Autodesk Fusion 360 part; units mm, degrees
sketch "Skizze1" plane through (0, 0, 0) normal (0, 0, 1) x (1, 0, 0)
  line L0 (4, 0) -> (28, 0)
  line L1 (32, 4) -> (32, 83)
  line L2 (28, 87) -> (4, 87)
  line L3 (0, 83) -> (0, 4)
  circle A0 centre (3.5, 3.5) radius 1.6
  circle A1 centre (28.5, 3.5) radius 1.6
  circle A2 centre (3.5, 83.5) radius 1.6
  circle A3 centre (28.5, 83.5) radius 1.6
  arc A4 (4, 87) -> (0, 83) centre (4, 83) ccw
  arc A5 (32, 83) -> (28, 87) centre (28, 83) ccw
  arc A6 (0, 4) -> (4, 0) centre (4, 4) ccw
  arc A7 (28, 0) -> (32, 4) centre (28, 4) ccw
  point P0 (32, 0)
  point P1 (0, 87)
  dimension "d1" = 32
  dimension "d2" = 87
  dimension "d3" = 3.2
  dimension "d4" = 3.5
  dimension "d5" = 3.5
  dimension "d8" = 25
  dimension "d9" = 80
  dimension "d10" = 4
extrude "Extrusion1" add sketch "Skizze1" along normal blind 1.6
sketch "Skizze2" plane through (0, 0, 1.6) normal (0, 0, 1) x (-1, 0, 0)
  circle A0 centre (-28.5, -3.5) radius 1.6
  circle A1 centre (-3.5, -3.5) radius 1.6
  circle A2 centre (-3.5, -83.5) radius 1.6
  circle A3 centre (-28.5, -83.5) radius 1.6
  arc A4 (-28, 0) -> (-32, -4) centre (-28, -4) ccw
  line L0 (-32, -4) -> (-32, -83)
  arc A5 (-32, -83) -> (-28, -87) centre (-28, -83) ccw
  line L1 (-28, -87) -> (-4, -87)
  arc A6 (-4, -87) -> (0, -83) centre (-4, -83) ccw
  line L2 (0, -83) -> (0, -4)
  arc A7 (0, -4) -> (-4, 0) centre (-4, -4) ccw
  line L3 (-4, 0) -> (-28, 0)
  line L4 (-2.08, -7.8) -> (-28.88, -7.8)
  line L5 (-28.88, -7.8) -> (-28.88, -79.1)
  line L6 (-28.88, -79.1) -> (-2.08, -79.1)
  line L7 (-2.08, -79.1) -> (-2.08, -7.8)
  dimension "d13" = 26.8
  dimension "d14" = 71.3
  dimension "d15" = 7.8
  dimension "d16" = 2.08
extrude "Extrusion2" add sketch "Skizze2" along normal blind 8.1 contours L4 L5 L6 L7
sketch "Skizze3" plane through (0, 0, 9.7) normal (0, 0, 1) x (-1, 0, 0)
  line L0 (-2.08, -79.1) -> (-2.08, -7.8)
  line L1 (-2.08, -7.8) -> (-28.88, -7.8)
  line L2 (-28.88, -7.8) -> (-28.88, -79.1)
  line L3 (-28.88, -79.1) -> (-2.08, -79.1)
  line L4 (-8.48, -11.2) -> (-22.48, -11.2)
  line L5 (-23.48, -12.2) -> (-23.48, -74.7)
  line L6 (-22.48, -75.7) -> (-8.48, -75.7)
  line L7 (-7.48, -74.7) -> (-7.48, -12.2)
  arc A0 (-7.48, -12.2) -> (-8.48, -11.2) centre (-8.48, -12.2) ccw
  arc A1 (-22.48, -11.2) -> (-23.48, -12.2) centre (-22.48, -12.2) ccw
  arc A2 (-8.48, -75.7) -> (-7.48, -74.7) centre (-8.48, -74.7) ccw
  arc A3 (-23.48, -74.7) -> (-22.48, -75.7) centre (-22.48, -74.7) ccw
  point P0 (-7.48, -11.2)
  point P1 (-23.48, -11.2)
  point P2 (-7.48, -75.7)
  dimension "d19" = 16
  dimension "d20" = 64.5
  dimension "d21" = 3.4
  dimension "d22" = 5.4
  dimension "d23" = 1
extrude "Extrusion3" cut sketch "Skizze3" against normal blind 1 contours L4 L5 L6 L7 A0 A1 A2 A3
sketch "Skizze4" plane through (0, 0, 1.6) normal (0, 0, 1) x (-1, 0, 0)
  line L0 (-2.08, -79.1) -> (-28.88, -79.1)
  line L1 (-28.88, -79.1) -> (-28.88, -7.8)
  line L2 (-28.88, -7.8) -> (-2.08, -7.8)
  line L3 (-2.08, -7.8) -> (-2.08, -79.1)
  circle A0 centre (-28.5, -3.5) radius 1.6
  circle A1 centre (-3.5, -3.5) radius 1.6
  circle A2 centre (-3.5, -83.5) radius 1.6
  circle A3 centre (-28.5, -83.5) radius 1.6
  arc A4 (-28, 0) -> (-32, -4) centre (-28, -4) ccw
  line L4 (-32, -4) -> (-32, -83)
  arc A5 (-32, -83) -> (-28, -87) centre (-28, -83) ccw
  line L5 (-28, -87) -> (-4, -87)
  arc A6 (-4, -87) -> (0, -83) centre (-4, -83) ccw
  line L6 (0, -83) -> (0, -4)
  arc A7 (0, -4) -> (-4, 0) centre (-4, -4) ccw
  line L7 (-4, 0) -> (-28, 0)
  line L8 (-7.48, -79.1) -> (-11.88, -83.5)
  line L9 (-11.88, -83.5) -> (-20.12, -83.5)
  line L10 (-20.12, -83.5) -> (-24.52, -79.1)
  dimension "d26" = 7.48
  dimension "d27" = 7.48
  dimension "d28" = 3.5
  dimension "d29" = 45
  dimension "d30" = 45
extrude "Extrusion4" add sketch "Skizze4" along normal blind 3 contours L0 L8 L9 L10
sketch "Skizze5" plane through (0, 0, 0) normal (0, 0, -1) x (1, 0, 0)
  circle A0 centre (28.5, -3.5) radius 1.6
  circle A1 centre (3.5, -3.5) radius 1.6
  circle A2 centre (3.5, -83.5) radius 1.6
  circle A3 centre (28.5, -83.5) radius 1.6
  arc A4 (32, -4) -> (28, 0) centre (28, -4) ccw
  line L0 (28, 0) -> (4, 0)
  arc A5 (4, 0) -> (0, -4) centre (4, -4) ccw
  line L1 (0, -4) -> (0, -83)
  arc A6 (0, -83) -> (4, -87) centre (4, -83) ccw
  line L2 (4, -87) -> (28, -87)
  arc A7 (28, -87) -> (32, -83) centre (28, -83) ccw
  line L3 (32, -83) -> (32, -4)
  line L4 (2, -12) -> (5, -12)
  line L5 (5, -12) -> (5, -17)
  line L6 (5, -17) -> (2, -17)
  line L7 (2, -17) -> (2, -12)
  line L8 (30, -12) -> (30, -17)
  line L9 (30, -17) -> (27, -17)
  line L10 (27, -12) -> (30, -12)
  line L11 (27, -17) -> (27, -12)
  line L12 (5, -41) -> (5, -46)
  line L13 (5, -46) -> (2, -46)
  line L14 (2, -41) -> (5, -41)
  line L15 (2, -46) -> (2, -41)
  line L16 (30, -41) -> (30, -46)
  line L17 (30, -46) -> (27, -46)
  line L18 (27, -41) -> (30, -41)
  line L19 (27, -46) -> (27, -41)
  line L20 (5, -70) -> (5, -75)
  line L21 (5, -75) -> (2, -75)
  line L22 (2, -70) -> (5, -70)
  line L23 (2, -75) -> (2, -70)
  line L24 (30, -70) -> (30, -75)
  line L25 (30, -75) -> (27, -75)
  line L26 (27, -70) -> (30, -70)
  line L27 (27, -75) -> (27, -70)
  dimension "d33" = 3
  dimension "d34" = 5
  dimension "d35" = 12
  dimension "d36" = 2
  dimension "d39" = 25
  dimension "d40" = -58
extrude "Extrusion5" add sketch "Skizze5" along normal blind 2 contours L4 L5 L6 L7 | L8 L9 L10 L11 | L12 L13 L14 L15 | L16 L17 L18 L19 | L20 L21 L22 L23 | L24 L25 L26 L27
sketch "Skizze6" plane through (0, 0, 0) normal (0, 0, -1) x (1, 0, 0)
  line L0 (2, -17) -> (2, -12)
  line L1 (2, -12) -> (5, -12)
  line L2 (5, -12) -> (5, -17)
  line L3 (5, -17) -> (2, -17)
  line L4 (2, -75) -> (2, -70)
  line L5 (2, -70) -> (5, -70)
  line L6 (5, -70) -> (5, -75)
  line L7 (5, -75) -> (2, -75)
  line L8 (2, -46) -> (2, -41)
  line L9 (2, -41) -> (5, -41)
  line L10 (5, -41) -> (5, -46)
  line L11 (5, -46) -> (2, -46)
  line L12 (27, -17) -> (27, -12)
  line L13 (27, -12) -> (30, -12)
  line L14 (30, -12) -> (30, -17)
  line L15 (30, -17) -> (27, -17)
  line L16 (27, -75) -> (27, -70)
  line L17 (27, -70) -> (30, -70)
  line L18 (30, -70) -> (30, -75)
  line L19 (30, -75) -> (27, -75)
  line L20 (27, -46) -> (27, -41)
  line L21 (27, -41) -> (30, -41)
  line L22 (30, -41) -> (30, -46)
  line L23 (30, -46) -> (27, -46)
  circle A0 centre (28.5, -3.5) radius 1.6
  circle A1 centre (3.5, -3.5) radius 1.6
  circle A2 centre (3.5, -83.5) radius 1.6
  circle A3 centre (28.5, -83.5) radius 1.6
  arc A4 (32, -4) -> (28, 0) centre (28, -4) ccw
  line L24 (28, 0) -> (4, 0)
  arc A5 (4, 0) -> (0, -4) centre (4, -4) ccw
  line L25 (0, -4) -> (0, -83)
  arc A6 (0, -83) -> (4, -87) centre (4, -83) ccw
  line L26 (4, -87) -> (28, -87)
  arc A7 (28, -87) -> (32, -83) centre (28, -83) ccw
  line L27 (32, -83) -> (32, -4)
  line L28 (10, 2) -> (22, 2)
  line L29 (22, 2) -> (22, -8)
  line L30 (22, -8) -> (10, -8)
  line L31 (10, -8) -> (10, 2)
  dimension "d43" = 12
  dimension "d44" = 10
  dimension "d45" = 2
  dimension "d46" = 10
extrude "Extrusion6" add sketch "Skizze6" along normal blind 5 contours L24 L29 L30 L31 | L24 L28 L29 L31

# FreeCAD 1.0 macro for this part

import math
import FreeCAD as App
import Part
import Sketcher
Q = App.Units.Quantity


def add_polygon(sketch, points):
    """Adds a closed chain of lines whose ends are joined by coincident constraints."""
    first, n = sketch.GeometryCount, len(points)
    for a, b in zip(points, points[1:] + points[:1]):
        sketch.addGeometry(Part.LineSegment(App.Vector(*a, 0), App.Vector(*b, 0)), False)
    for i in range(n):
        sketch.addConstraint(Sketcher.Constraint("Coincident", first + i, 2, first + (i + 1) % n, 1))

doc = App.newDocument("Part")
body = doc.addObject("PartDesign::Body", "Body")

sketch1 = doc.addObject("Sketcher::SketchObject", "Sketch")
body.addObject(sketch1)
sketch1.AttachmentSupport = (doc.XY_Plane, [""])
sketch1.MapMode = "FlatFace"
sketch1.addGeometry([
    Part.ArcOfCircle(Part.Circle(App.Vector(4, 4, 0), App.Vector(0, 0, 1), 4), math.radians(180), math.radians(270)),
    Part.LineSegment(App.Vector(4, 0, 0), App.Vector(28, 0, 0)),
    Part.ArcOfCircle(Part.Circle(App.Vector(28, 4, 0), App.Vector(0, 0, 1), 4), math.radians(-90), math.radians(0)),
    Part.LineSegment(App.Vector(32, 4, 0), App.Vector(32, 83, 0)),
    Part.ArcOfCircle(Part.Circle(App.Vector(28, 83, 0), App.Vector(0, 0, 1), 4), math.radians(0), math.radians(90)),
    Part.LineSegment(App.Vector(28, 87, 0), App.Vector(4, 87, 0)),
    Part.ArcOfCircle(Part.Circle(App.Vector(4, 83, 0), App.Vector(0, 0, 1), 4), math.radians(90), math.radians(180)),
    Part.LineSegment(App.Vector(0, 83, 0), App.Vector(0, 4, 0)),
    Part.Circle(App.Vector(3.5, 3.5, 0), App.Vector(0, 0, 1), 1.6),
    Part.Circle(App.Vector(28.5, 3.5, 0), App.Vector(0, 0, 1), 1.6),
    Part.Circle(App.Vector(3.5, 83.5, 0), App.Vector(0, 0, 1), 1.6),
    Part.Circle(App.Vector(28.5, 83.5, 0), App.Vector(0, 0, 1), 1.6),
], False)
sketch1.addConstraint([
    Sketcher.Constraint("Tangent", 0, 2, 1, 1),
    Sketcher.Constraint("Tangent", 1, 2, 2, 1),
    Sketcher.Constraint("Tangent", 2, 2, 3, 1),
    Sketcher.Constraint("Tangent", 3, 2, 4, 1),
    Sketcher.Constraint("Tangent", 4, 2, 5, 1),
    Sketcher.Constraint("Tangent", 5, 2, 6, 1),
    Sketcher.Constraint("Tangent", 6, 2, 7, 1),
    Sketcher.Constraint("Tangent", 7, 2, 0, 1),
    Sketcher.Constraint("Horizontal", 1),
    Sketcher.Constraint("Vertical", 3),
    Sketcher.Constraint("Horizontal", 5),
    Sketcher.Constraint("Vertical", 7),
    Sketcher.Constraint("Equal", 0, 2),
    Sketcher.Constraint("Equal", 2, 4),
    Sketcher.Constraint("Equal", 4, 6),
    Sketcher.Constraint("Equal", 8, 9),
    Sketcher.Constraint("Equal", 9, 10),
    Sketcher.Constraint("Equal", 10, 11),
    Sketcher.Constraint("PointOnObject", 0, 2, -1),
    Sketcher.Constraint("PointOnObject", 6, 2, -2),
    Sketcher.Constraint("Horizontal", 8, 3, 9, 3),
    Sketcher.Constraint("Horizontal", 10, 3, 11, 3),
    Sketcher.Constraint("Vertical", 8, 3, 10, 3),
    Sketcher.Constraint("Vertical", 9, 3, 11, 3),
    Sketcher.Constraint("Radius", 0, Q("4 mm")),
    Sketcher.Constraint("Diameter", 8, Q("3.2 mm")),
    Sketcher.Constraint("DistanceX", -1, 1, 2, 2, Q("32 mm")),
    Sketcher.Constraint("DistanceY", -1, 1, 4, 2, Q("87 mm")),
    Sketcher.Constraint("DistanceX", 8, 3, 9, 3, Q("25 mm")),
    Sketcher.Constraint("DistanceY", 8, 3, 10, 3, Q("80 mm")),
    Sketcher.Constraint("DistanceX", -1, 1, 8, 3, Q("3.5 mm")),
    Sketcher.Constraint("DistanceY", -1, 1, 8, 3, Q("3.5 mm")),
])
pad1 = doc.addObject("PartDesign::Pad", "Pad")
body.addObject(pad1)
pad1.Profile = sketch1
pad1.Length = 1.6

sketch2 = doc.addObject("Sketcher::SketchObject", "Sketch001")
body.addObject(sketch2)
sketch2.AttachmentSupport = (doc.XY_Plane, [""])
sketch2.MapMode = "FlatFace"
sketch2.AttachmentOffset = App.Placement(App.Vector(0, 0, 1.6), App.Rotation())
add_polygon(sketch2, [(2.08, 79.1), (2.08, 7.8), (28.88, 7.8), (28.88, 79.1)])
sketch2.addConstraint([
    Sketcher.Constraint("Vertical", 0),
    Sketcher.Constraint("Horizontal", 1),
    Sketcher.Constraint("Vertical", 2),
    Sketcher.Constraint("Horizontal", 3),
    Sketcher.Constraint("DistanceX", 1, 1, 1, 2, Q("26.8 mm")),
    Sketcher.Constraint("DistanceY", 0, 2, 0, 1, Q("71.3 mm")),
    Sketcher.Constraint("DistanceY", -1, 1, 0, 2, Q("7.8 mm")),
    Sketcher.Constraint("DistanceX", -1, 1, 0, 2, Q("2.08 mm")),
])
pad2 = doc.addObject("PartDesign::Pad", "Pad001")
body.addObject(pad2)
pad2.Profile = sketch2
pad2.Length = 8.1

sketch3 = doc.addObject("Sketcher::SketchObject", "Sketch002")
body.addObject(sketch3)
sketch3.AttachmentSupport = (doc.XY_Plane, [""])
sketch3.MapMode = "FlatFace"
sketch3.AttachmentOffset = App.Placement(App.Vector(0, 0, 9.7), App.Rotation())
sketch3.addGeometry([
    Part.ArcOfCircle(Part.Circle(App.Vector(8.48, 12.2, 0), App.Vector(0, 0, 1), 1), math.radians(180), math.radians(270)),
    Part.LineSegment(App.Vector(8.48, 11.2, 0), App.Vector(22.48, 11.2, 0)),
    Part.ArcOfCircle(Part.Circle(App.Vector(22.48, 12.2, 0), App.Vector(0, 0, 1), 1), math.radians(-90), math.radians(0)),
    Part.LineSegment(App.Vector(23.48, 12.2, 0), App.Vector(23.48, 74.7, 0)),
    Part.ArcOfCircle(Part.Circle(App.Vector(22.48, 74.7, 0), App.Vector(0, 0, 1), 1), math.radians(0), math.radians(90)),
    Part.LineSegment(App.Vector(22.48, 75.7, 0), App.Vector(8.48, 75.7, 0)),
    Part.ArcOfCircle(Part.Circle(App.Vector(8.48, 74.7, 0), App.Vector(0, 0, 1), 1), math.radians(90), math.radians(180)),
    Part.LineSegment(App.Vector(7.48, 74.7, 0), App.Vector(7.48, 12.2, 0)),
], False)
sketch3.addConstraint([
    Sketcher.Constraint("Tangent", 0, 2, 1, 1),
    Sketcher.Constraint("Tangent", 1, 2, 2, 1),
    Sketcher.Constraint("Tangent", 2, 2, 3, 1),
    Sketcher.Constraint("Tangent", 3, 2, 4, 1),
    Sketcher.Constraint("Tangent", 4, 2, 5, 1),
    Sketcher.Constraint("Tangent", 5, 2, 6, 1),
    Sketcher.Constraint("Tangent", 6, 2, 7, 1),
    Sketcher.Constraint("Tangent", 7, 2, 0, 1),
    Sketcher.Constraint("Horizontal", 1),
    Sketcher.Constraint("Vertical", 3),
    Sketcher.Constraint("Horizontal", 5),
    Sketcher.Constraint("Vertical", 7),
    Sketcher.Constraint("Equal", 0, 2),
    Sketcher.Constraint("Equal", 2, 4),
    Sketcher.Constraint("Equal", 4, 6),
    Sketcher.Constraint("Radius", 0, Q("1 mm")),
    Sketcher.Constraint("DistanceX", 6, 2, 3, 2, Q("16 mm")),
    Sketcher.Constraint("DistanceY", 3, 1, 3, 2, Q("62.5 mm")),
    Sketcher.Constraint("DistanceY", -1, 1, 0, 3, Q("12.2 mm")),
    Sketcher.Constraint("DistanceX", -1, 1, 0, 3, Q("8.48 mm")),
])
pocket1 = doc.addObject("PartDesign::Pocket", "Pocket")
body.addObject(pocket1)
pocket1.Profile = sketch3
pocket1.Length = 1

sketch4 = doc.addObject("Sketcher::SketchObject", "Sketch003")
body.addObject(sketch4)
sketch4.AttachmentSupport = (doc.XY_Plane, [""])
sketch4.MapMode = "FlatFace"
sketch4.AttachmentOffset = App.Placement(App.Vector(0, 0, 1.6), App.Rotation())
add_polygon(sketch4, [(11.88, 83.5), (7.48, 79.1), (24.52, 79.1), (20.12, 83.5)])
sketch4.addConstraint([
    Sketcher.Constraint("Horizontal", 1),
    Sketcher.Constraint("Horizontal", 3),
    Sketcher.Constraint("Perpendicular", 0, 2),
    Sketcher.Constraint("Equal", 0, 2),
    Sketcher.Constraint("DistanceX", -1, 1, 0, 2, Q("7.48 mm")),
    Sketcher.Constraint("DistanceX", 1, 1, 1, 2, Q("17.04 mm")),
    Sketcher.Constraint("DistanceX", 3, 2, 3, 1, Q("8.24 mm")),
    Sketcher.Constraint("DistanceY", -1, 1, 0, 2, Q("79.1 mm")),
])
pad3 = doc.addObject("PartDesign::Pad", "Pad002")
body.addObject(pad3)
pad3.Profile = sketch4
pad3.Length = 3

sketch5 = doc.addObject("Sketcher::SketchObject", "Sketch004")
body.addObject(sketch5)
sketch5.AttachmentSupport = (doc.XY_Plane, [""])
sketch5.MapMode = "FlatFace"
add_polygon(sketch5, [(5, 12), (2, 12), (2, 17), (5, 17)])
add_polygon(sketch5, [(30, 17), (30, 12), (27, 12), (27, 17)])
add_polygon(sketch5, [(5, 46), (5, 41), (2, 41), (2, 46)])
add_polygon(sketch5, [(30, 46), (30, 41), (27, 41), (27, 46)])
add_polygon(sketch5, [(5, 75), (5, 70), (2, 70), (2, 75)])
add_polygon(sketch5, [(30, 75), (30, 70), (27, 70), (27, 75)])
sketch5.addConstraint([
    Sketcher.Constraint("Horizontal", 0),
    Sketcher.Constraint("Vertical", 1),
    Sketcher.Constraint("Horizontal", 2),
    Sketcher.Constraint("Vertical", 3),
    Sketcher.Constraint("Vertical", 4),
    Sketcher.Constraint("Horizontal", 5),
    Sketcher.Constraint("Vertical", 6),
    Sketcher.Constraint("Horizontal", 7),
    Sketcher.Constraint("Vertical", 8),
    Sketcher.Constraint("Horizontal", 9),
    Sketcher.Constraint("Vertical", 10),
    Sketcher.Constraint("Horizontal", 11),
    Sketcher.Constraint("Vertical", 12),
    Sketcher.Constraint("Horizontal", 13),
    Sketcher.Constraint("Vertical", 14),
    Sketcher.Constraint("Horizontal", 15),
    Sketcher.Constraint("Vertical", 16),
    Sketcher.Constraint("Horizontal", 17),
    Sketcher.Constraint("Vertical", 18),
    Sketcher.Constraint("Horizontal", 19),
    Sketcher.Constraint("Vertical", 20),
    Sketcher.Constraint("Horizontal", 21),
    Sketcher.Constraint("Vertical", 22),
    Sketcher.Constraint("Horizontal", 23),
    Sketcher.Constraint("Horizontal", 3, 2, 4, 2),
    Sketcher.Constraint("Horizontal", 2, 2, 6, 2),
    Sketcher.Constraint("Horizontal", 9, 2, 12, 2),
    Sketcher.Constraint("Horizontal", 11, 2, 14, 2),
    Sketcher.Constraint("Horizontal", 17, 2, 20, 2),
    Sketcher.Constraint("Horizontal", 19, 2, 22, 2),
    Sketcher.Constraint("Vertical", 3, 2, 8, 2),
    Sketcher.Constraint("Vertical", 1, 2, 9, 2),
    Sketcher.Constraint("Vertical", 7, 2, 12, 2),
    Sketcher.Constraint("Vertical", 6, 2, 13, 2),
    Sketcher.Constraint("Vertical", 11, 2, 16, 2),
    Sketcher.Constraint("Vertical", 10, 2, 17, 2),
    Sketcher.Constraint("Vertical", 15, 2, 20, 2),
    Sketcher.Constraint("Vertical", 14, 2, 21, 2),
    Sketcher.Constraint("Equal", 2, 5),
    Sketcher.Constraint("Equal", 6, 8),
    Sketcher.Constraint("Equal", 14, 16),
    Sketcher.Constraint("DistanceX", 0, 2, 0, 1, Q("3 mm")),
    Sketcher.Constraint("DistanceY", 1, 1, 1, 2, Q("5 mm")),
    Sketcher.Constraint("DistanceX", -1, 1, 0, 2, Q("2 mm")),
    Sketcher.Constraint("DistanceY", -1, 1, 0, 2, Q("12 mm")),
    Sketcher.Constraint("DistanceX", 3, 2, 4, 2, Q("25 mm")),
    Sketcher.Constraint("DistanceY", -1, 1, 8, 2, Q("41 mm")),
    Sketcher.Constraint("DistanceY", -1, 1, 16, 2, Q("70 mm")),
])
pad4 = doc.addObject("PartDesign::Pad", "Pad003")
body.addObject(pad4)
pad4.Profile = sketch5
pad4.Length = 2
pad4.Reversed = True

sketch6 = doc.addObject("Sketcher::SketchObject", "Sketch005")
body.addObject(sketch6)
sketch6.AttachmentSupport = (doc.XY_Plane, [""])
sketch6.MapMode = "FlatFace"
add_polygon(sketch6, [(22, 8), (22, -2), (10, -2), (10, 8)])
sketch6.addConstraint([
    Sketcher.Constraint("Vertical", 0),
    Sketcher.Constraint("Horizontal", 1),
    Sketcher.Constraint("Vertical", 2),
    Sketcher.Constraint("Horizontal", 3),
    Sketcher.Constraint("DistanceX", 1, 2, 1, 1, Q("12 mm")),
    Sketcher.Constraint("DistanceY", 0, 2, 0, 1, Q("10 mm")),
    Sketcher.Constraint("DistanceY", 0, 2, -1, 1, Q("2 mm")),
    Sketcher.Constraint("DistanceX", -1, 1, 1, 2, Q("10 mm")),
])
pad5 = doc.addObject("PartDesign::Pad", "Pad004")
body.addObject(pad5)
pad5.Profile = sketch6
pad5.Length = 5
pad5.Reversed = True

doc.recompute()
